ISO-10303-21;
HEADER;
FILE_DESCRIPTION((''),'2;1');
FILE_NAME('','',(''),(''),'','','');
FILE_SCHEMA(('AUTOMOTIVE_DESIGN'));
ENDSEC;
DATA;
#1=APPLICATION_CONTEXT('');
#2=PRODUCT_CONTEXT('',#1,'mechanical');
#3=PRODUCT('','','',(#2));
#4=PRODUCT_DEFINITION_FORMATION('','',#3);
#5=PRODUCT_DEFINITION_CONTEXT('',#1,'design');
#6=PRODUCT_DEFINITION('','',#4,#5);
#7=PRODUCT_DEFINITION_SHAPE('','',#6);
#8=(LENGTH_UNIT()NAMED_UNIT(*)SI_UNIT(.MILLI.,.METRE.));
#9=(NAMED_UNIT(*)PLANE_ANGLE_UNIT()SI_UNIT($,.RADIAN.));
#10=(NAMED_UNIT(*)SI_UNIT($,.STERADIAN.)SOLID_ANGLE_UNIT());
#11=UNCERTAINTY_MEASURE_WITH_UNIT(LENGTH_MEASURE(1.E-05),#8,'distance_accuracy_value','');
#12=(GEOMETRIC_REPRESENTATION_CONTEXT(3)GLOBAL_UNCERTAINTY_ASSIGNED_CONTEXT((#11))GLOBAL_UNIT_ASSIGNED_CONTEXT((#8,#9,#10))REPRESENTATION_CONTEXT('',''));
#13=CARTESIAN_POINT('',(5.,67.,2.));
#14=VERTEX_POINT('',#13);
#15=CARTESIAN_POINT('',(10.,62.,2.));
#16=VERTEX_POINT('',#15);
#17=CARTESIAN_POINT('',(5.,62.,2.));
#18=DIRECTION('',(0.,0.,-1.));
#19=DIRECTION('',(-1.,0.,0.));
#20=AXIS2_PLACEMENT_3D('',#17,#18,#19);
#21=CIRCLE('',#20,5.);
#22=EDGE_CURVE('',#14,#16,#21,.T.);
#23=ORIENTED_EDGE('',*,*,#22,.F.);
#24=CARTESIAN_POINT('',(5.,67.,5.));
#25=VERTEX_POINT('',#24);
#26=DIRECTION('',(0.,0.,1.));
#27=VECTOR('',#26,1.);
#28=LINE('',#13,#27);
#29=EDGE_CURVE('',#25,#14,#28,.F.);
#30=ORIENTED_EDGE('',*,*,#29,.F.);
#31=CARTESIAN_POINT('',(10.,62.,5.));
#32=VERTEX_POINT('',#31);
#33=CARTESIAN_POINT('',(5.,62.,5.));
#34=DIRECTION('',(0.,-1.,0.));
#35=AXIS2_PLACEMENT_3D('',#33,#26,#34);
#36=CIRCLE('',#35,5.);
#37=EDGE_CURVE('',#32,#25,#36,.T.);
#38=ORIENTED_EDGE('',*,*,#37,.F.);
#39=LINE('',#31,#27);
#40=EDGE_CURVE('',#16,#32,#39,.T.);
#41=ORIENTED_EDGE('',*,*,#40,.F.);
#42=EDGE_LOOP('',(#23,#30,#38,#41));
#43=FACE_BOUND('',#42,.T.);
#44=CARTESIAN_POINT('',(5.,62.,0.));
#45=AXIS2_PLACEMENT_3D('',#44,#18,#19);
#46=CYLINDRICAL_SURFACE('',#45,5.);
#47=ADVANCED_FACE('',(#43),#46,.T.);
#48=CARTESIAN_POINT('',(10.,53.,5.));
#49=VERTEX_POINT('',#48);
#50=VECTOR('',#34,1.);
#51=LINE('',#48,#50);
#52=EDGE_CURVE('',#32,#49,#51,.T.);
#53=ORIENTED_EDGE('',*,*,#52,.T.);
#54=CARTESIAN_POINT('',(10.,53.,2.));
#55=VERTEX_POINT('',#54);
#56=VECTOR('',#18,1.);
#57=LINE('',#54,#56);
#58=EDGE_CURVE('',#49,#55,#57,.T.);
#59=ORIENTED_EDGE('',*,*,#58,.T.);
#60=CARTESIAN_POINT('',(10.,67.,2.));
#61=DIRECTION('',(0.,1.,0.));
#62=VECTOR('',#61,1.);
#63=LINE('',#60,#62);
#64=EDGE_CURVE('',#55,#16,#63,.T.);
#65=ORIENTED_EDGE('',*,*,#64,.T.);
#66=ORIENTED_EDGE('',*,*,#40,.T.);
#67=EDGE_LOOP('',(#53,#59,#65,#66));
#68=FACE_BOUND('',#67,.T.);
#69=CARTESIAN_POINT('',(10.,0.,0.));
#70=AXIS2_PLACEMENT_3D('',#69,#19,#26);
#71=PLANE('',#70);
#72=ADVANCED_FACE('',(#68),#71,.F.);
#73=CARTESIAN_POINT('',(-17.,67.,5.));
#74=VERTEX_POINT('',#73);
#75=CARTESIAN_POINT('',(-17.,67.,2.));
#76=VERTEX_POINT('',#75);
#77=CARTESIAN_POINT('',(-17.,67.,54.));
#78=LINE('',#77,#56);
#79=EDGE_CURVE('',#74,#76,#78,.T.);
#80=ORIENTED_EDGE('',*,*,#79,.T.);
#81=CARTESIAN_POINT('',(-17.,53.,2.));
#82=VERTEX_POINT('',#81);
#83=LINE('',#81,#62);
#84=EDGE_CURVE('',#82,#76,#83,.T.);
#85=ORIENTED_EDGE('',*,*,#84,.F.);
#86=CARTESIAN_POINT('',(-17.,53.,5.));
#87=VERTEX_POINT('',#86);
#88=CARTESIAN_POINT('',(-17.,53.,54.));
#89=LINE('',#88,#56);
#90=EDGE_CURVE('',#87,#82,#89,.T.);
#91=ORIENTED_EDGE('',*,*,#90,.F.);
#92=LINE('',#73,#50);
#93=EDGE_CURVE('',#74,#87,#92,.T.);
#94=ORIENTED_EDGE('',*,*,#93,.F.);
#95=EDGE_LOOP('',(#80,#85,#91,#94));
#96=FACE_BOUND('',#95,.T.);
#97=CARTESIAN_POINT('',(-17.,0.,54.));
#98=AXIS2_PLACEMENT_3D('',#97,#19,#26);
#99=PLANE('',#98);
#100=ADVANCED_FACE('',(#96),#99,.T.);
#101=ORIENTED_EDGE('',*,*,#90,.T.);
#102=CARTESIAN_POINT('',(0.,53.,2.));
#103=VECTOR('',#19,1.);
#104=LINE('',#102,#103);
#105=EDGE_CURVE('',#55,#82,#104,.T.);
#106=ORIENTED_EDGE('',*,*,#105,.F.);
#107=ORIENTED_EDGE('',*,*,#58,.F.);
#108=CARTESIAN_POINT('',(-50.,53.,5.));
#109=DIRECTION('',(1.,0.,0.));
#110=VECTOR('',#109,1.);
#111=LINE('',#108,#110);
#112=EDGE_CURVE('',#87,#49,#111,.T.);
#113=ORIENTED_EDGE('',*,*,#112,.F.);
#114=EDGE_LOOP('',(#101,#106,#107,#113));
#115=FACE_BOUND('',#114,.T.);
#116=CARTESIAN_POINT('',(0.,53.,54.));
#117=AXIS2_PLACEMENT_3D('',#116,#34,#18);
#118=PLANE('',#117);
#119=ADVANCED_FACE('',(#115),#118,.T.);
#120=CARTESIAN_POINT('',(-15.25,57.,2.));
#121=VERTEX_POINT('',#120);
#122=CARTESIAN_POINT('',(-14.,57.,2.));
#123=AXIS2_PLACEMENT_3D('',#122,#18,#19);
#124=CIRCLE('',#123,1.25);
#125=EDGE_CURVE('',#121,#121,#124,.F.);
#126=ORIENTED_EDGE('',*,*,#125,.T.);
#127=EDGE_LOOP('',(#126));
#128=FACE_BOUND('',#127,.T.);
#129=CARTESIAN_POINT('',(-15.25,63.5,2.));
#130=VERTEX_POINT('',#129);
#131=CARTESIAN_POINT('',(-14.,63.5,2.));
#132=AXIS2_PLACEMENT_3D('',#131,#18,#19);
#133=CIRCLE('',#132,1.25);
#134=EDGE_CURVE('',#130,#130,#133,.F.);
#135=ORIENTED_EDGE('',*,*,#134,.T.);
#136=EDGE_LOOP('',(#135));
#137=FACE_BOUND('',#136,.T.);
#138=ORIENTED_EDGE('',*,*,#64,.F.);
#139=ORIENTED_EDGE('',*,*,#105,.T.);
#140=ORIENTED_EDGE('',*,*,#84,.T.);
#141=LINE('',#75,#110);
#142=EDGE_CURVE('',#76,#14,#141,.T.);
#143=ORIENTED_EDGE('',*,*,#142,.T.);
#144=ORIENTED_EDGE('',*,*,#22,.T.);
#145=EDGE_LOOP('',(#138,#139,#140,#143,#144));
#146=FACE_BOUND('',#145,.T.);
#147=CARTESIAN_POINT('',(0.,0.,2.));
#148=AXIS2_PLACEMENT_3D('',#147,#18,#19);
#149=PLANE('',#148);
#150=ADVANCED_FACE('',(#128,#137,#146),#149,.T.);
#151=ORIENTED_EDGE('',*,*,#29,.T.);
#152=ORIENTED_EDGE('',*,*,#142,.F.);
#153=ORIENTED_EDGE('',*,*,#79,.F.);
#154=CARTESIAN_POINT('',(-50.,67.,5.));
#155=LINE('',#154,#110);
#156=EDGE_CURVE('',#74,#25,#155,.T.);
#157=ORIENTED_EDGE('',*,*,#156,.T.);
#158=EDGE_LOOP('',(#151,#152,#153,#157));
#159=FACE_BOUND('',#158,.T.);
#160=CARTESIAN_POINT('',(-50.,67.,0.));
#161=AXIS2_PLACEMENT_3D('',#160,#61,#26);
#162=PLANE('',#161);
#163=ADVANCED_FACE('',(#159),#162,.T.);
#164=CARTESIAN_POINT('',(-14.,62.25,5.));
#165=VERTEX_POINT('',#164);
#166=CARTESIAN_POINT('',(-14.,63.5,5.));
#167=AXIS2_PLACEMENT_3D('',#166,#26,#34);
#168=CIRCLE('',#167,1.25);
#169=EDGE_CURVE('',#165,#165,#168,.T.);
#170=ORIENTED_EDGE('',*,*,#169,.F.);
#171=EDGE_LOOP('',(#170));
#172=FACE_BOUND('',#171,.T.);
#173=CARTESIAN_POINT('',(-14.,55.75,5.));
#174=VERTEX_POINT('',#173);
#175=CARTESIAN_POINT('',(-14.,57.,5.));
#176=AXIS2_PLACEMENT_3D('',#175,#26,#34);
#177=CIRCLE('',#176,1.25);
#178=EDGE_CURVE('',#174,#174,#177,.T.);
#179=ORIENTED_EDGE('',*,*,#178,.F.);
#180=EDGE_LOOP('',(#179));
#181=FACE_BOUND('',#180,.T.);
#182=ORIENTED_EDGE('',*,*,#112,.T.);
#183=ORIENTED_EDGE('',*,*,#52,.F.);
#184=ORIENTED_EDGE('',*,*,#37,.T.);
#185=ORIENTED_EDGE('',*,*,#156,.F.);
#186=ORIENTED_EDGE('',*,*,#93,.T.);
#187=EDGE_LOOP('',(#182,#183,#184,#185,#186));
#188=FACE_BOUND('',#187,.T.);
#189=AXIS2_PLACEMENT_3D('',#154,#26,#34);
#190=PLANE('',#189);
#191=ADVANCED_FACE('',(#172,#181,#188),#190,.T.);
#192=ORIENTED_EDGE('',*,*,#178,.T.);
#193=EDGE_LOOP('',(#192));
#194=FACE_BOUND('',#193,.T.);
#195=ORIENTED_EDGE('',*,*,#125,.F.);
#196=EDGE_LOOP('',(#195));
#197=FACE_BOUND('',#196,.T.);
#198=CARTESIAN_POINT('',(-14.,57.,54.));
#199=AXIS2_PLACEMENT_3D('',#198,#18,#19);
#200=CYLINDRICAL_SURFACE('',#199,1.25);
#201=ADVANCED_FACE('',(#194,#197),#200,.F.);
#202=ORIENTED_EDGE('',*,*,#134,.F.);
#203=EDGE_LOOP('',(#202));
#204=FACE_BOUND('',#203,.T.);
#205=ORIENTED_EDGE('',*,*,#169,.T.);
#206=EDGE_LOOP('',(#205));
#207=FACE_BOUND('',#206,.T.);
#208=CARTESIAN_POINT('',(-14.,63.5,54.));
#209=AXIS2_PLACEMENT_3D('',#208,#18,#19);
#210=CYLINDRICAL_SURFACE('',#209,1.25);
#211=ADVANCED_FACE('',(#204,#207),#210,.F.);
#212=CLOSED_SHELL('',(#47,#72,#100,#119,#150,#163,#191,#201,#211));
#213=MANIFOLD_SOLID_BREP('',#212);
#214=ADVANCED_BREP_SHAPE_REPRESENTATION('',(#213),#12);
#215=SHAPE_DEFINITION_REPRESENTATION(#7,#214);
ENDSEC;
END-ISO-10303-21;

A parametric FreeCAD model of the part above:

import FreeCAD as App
import Part
import Sketcher
from FreeCAD import Vector


def edges_at(feature, points):
    """Names of the edges that pass closest to the given points."""
    edges = feature.Shape.Edges
    near = lambda p: min(range(len(edges)), key=lambda i: edges[i].distToShape(Part.Vertex(*p))[0])
    return sorted({f"Edge{near(p) + 1}" for p in points})


def add_polygon(sketch, points):
    """Adds a closed chain of lines whose ends are joined by coincident constraints."""
    first, n = sketch.GeometryCount, len(points)
    for a, b in zip(points, points[1:] + points[:1]):
        sketch.addGeometry(Part.LineSegment(App.Vector(*a, 0), App.Vector(*b, 0)), False)
    for i in range(n):
        sketch.addConstraint(Sketcher.Constraint("Coincident", first + i, 2, first + (i + 1) % n, 1))

doc = App.newDocument("Part")
body = doc.addObject("PartDesign::Body", "Body")

# Sketch on XY plane
sketch1 = body.newObject("Sketcher::SketchObject", "Sketch")
sketch1.AttachmentSupport = (doc.getObject("XY_Plane"), [""])
sketch1.MapMode = "FlatFace"
add_polygon(sketch1, [(0, 58), (0, 0), (19, 0), (19, 58)])  # lines 0-3
sketch1.addConstraint([
    Sketcher.Constraint("Vertical", 0),
    Sketcher.Constraint("Horizontal", 1),
    Sketcher.Constraint("Vertical", 2),
    Sketcher.Constraint("Horizontal", 3),
    Sketcher.Constraint("Coincident", 0, 2, -1, 1),
    Sketcher.Constraint("DistanceX", 1, 1, 1, 2, 19.0),
    Sketcher.Constraint("DistanceY", 0, 2, 0, 1, 58.0),
])
pad1 = body.newObject("PartDesign::Pad", "Pad")
pad1.Profile = sketch1
pad1.Length = 54

# Sketch on YZ plane
sketch2 = body.newObject("Sketcher::SketchObject", "Sketch001")
sketch2.AttachmentSupport = (doc.getObject("YZ_Plane"), [""])
sketch2.MapMode = "FlatFace"
sketch2.addGeometry([
    Part.Circle(Vector(29, 28, 0), Vector(0, 0, 1), 20),
    Part.Circle(Vector(29, 28, 0), Vector(0, 0, 1), 16),
], False)
sketch2.addConstraint([
    Sketcher.Constraint("Coincident", 1, 3, 0, 3),
    Sketcher.Constraint("Diameter", 0, 40.0),
    Sketcher.Constraint("Diameter", 1, 31.0),
    Sketcher.Constraint("DistanceX", -1, 1, 0, 3, 29.0),
    Sketcher.Constraint("DistanceY", -1, 1, 0, 3, 27.5),
])
pad2 = body.newObject("PartDesign::Pad", "Pad001")
pad2.Profile = sketch2
pad2.Length = 50

# Sketch on YZ plane
sketch3 = body.newObject("Sketcher::SketchObject", "Sketch002")
sketch3.AttachmentSupport = (doc.getObject("YZ_Plane"), [""])
sketch3.MapMode = "FlatFace"
sketch3.addGeometry([
    Part.Circle(Vector(29, 9.2, 0), Vector(0, 0, 1), 1.9),
    Part.Circle(Vector(29, 45.8, 0), Vector(0, 0, 1), 1.9),
], False)
sketch3.addConstraint([
    Sketcher.Constraint("Equal", 0, 1),
    Sketcher.Constraint("Vertical", 0, 3, 1, 3),
    Sketcher.Constraint("Diameter", 0, 3.8),
    Sketcher.Constraint("DistanceX", -1, 1, 0, 3, 29.0),
    Sketcher.Constraint("DistanceY", 0, 3, 1, 3, 36.5),
    Sketcher.Constraint("DistanceY", -1, 1, 0, 3, 9.25),
])
pocket1 = body.newObject("PartDesign::Pocket", "Pocket")
pocket1.Profile = sketch3
pocket1.Length = 10
pocket1.Reversed = True
doc.recompute()

fillet = body.newObject("PartDesign::Fillet", "Fillet")
fillet.Base = (pocket1, edges_at(pocket1, [(9.5, 0, 0)]))
fillet.Radius = 10

# Sketch on YZ plane
sketch4 = body.newObject("Sketcher::SketchObject", "Sketch003")
sketch4.AttachmentSupport = (doc.getObject("YZ_Plane"), [""])
sketch4.MapMode = "FlatFace"
add_polygon(sketch4, [(0, 0), (67, 0), (67, 5), (0, 5)])  # lines 0-3
sketch4.addConstraint([
    Sketcher.Constraint("Horizontal", 0),
    Sketcher.Constraint("Vertical", 1),
    Sketcher.Constraint("Horizontal", 2),
    Sketcher.Constraint("Vertical", 3),
    Sketcher.Constraint("Coincident", 3, 2, -1, 1),
    Sketcher.Constraint("DistanceX", 0, 1, 0, 2, 67.0),
    Sketcher.Constraint("DistanceY", 1, 1, 1, 2, 5.0),
])
pad3 = body.newObject("PartDesign::Pad", "Pad002")
pad3.Profile = sketch4
pad3.Length = 50
pad3.Reversed = True

# Sketch on XY plane
sketch5 = body.newObject("Sketcher::SketchObject", "Sketch004")
sketch5.AttachmentSupport = (doc.getObject("XY_Plane"), [""])
sketch5.MapMode = "FlatFace"
sketch5.addGeometry(Part.Circle(Vector(-14, 57, 0), Vector(0, 0, 1), 1.2), False)  # 0
add_polygon(sketch5, [(0, 53), (0, 0), (-50, 0), (-50, 67), (-17, 67), (-17, 53)])  # lines 1-6
sketch5.addGeometry(Part.Circle(Vector(-14, 63.5, 0), Vector(0, 0, 1), 1.2), False)  # 7
sketch5.addConstraint([
    Sketcher.Constraint("Vertical", 1),
    Sketcher.Constraint("Horizontal", 2),
    Sketcher.Constraint("Vertical", 3),
    Sketcher.Constraint("Horizontal", 4),
    Sketcher.Constraint("Vertical", 5),
    Sketcher.Constraint("Horizontal", 6),
    Sketcher.Constraint("Coincident", 1, 2, -1, 1),
    Sketcher.Constraint("Equal", 0, 7),
    Sketcher.Constraint("Vertical", 0, 3, 7, 3),
    Sketcher.Constraint("Diameter", 0, 2.5),
    Sketcher.Constraint("DistanceX", 2, 2, 2, 1, 50.0),
    Sketcher.Constraint("DistanceX", 4, 1, 4, 2, 33.0),
    Sketcher.Constraint("DistanceY", 1, 2, 1, 1, 53.0),
    Sketcher.Constraint("DistanceY", 3, 1, 3, 2, 67.0),
    Sketcher.Constraint("DistanceX", 0, 3, -1, 1, 14.0),
    Sketcher.Constraint("DistanceY", -1, 1, 0, 3, 57.0),
    Sketcher.Constraint("DistanceY", -1, 1, 7, 3, 63.5),
])
pocket2 = body.newObject("PartDesign::Pocket", "Pocket001")
pocket2.Profile = sketch5
pocket2.Type = "ThroughAll"
pocket2.Reversed = True

# Sketch on XY plane
sketch6 = body.newObject("Sketcher::SketchObject", "Sketch005")
sketch6.AttachmentSupport = (doc.getObject("XY_Plane"), [""])
sketch6.MapMode = "FlatFace"
add_polygon(sketch6, [(0, 67), (0, 53), (-17, 53), (-17, 67)])  # lines 0-3
sketch6.addConstraint([
    Sketcher.Constraint("Vertical", 0),
    Sketcher.Constraint("Horizontal", 1),
    Sketcher.Constraint("Vertical", 2),
    Sketcher.Constraint("Horizontal", 3),
    Sketcher.Constraint("PointOnObject", 0, 2, -2),
    Sketcher.Constraint("DistanceX", 1, 2, 1, 1, 17.0),
    Sketcher.Constraint("DistanceY", 0, 2, 0, 1, 14.0),
    Sketcher.Constraint("DistanceY", -1, 1, 0, 2, 53.0),
])
pocket3 = body.newObject("PartDesign::Pocket", "Pocket002")
pocket3.Profile = sketch6
pocket3.Length = 2
pocket3.Reversed = True

# Sketch on XZ plane
sketch7 = body.newObject("Sketcher::SketchObject", "Sketch006")
sketch7.AttachmentSupport = (doc.getObject("XZ_Plane"), [""])
sketch7.MapMode = "FlatFace"
sketch7.AttachmentOffset = App.Placement(Vector(0, 0, -58), App.Rotation())
add_polygon(sketch7, [(0, 0), (0, 57), (50, 57), (50, 0)])  # lines 0-3
sketch7.addConstraint([
    Sketcher.Constraint("Vertical", 0),
    Sketcher.Constraint("Horizontal", 1),
    Sketcher.Constraint("Vertical", 2),
    Sketcher.Constraint("Horizontal", 3),
    Sketcher.Constraint("Coincident", 3, 2, -1, 1),
    Sketcher.Constraint("DistanceX", 1, 1, 1, 2, 50.0),
    Sketcher.Constraint("DistanceY", 0, 1, 0, 2, 57.0),
])
pocket4 = body.newObject("PartDesign::Pocket", "Pocket003")
pocket4.Profile = sketch7
pocket4.Type = "ThroughAll"
pocket4.Reversed = True

# Sketch on YZ plane
sketch8 = body.newObject("Sketcher::SketchObject", "Sketch007")
sketch8.AttachmentSupport = (doc.getObject("YZ_Plane"), [""])
sketch8.MapMode = "FlatFace"
add_polygon(sketch8, [(67, 5), (53, 5), (53, 2), (67, 2)])  # lines 0-3
sketch8.addConstraint([
    Sketcher.Constraint("Horizontal", 0),
    Sketcher.Constraint("Vertical", 1),
    Sketcher.Constraint("Horizontal", 2),
    Sketcher.Constraint("Vertical", 3),
    Sketcher.Constraint("DistanceX", 0, 2, 0, 1, 14.0),
    Sketcher.Constraint("DistanceY", 1, 2, 1, 1, 3.0),
    Sketcher.Constraint("DistanceX", -1, 1, 0, 2, 53.0),
    Sketcher.Constraint("DistanceY", -1, 1, 0, 2, 5.0),
])
pad4 = body.newObject("PartDesign::Pad", "Pad003")
pad4.Profile = sketch8
pad4.Length = 10
doc.recompute()

fillet2 = body.newObject("PartDesign::Fillet", "Fillet001")
fillet2.Base = (pad4, edges_at(pad4, [(10, 67, 3.5)]))
fillet2.Radius = 5

doc.recompute()
